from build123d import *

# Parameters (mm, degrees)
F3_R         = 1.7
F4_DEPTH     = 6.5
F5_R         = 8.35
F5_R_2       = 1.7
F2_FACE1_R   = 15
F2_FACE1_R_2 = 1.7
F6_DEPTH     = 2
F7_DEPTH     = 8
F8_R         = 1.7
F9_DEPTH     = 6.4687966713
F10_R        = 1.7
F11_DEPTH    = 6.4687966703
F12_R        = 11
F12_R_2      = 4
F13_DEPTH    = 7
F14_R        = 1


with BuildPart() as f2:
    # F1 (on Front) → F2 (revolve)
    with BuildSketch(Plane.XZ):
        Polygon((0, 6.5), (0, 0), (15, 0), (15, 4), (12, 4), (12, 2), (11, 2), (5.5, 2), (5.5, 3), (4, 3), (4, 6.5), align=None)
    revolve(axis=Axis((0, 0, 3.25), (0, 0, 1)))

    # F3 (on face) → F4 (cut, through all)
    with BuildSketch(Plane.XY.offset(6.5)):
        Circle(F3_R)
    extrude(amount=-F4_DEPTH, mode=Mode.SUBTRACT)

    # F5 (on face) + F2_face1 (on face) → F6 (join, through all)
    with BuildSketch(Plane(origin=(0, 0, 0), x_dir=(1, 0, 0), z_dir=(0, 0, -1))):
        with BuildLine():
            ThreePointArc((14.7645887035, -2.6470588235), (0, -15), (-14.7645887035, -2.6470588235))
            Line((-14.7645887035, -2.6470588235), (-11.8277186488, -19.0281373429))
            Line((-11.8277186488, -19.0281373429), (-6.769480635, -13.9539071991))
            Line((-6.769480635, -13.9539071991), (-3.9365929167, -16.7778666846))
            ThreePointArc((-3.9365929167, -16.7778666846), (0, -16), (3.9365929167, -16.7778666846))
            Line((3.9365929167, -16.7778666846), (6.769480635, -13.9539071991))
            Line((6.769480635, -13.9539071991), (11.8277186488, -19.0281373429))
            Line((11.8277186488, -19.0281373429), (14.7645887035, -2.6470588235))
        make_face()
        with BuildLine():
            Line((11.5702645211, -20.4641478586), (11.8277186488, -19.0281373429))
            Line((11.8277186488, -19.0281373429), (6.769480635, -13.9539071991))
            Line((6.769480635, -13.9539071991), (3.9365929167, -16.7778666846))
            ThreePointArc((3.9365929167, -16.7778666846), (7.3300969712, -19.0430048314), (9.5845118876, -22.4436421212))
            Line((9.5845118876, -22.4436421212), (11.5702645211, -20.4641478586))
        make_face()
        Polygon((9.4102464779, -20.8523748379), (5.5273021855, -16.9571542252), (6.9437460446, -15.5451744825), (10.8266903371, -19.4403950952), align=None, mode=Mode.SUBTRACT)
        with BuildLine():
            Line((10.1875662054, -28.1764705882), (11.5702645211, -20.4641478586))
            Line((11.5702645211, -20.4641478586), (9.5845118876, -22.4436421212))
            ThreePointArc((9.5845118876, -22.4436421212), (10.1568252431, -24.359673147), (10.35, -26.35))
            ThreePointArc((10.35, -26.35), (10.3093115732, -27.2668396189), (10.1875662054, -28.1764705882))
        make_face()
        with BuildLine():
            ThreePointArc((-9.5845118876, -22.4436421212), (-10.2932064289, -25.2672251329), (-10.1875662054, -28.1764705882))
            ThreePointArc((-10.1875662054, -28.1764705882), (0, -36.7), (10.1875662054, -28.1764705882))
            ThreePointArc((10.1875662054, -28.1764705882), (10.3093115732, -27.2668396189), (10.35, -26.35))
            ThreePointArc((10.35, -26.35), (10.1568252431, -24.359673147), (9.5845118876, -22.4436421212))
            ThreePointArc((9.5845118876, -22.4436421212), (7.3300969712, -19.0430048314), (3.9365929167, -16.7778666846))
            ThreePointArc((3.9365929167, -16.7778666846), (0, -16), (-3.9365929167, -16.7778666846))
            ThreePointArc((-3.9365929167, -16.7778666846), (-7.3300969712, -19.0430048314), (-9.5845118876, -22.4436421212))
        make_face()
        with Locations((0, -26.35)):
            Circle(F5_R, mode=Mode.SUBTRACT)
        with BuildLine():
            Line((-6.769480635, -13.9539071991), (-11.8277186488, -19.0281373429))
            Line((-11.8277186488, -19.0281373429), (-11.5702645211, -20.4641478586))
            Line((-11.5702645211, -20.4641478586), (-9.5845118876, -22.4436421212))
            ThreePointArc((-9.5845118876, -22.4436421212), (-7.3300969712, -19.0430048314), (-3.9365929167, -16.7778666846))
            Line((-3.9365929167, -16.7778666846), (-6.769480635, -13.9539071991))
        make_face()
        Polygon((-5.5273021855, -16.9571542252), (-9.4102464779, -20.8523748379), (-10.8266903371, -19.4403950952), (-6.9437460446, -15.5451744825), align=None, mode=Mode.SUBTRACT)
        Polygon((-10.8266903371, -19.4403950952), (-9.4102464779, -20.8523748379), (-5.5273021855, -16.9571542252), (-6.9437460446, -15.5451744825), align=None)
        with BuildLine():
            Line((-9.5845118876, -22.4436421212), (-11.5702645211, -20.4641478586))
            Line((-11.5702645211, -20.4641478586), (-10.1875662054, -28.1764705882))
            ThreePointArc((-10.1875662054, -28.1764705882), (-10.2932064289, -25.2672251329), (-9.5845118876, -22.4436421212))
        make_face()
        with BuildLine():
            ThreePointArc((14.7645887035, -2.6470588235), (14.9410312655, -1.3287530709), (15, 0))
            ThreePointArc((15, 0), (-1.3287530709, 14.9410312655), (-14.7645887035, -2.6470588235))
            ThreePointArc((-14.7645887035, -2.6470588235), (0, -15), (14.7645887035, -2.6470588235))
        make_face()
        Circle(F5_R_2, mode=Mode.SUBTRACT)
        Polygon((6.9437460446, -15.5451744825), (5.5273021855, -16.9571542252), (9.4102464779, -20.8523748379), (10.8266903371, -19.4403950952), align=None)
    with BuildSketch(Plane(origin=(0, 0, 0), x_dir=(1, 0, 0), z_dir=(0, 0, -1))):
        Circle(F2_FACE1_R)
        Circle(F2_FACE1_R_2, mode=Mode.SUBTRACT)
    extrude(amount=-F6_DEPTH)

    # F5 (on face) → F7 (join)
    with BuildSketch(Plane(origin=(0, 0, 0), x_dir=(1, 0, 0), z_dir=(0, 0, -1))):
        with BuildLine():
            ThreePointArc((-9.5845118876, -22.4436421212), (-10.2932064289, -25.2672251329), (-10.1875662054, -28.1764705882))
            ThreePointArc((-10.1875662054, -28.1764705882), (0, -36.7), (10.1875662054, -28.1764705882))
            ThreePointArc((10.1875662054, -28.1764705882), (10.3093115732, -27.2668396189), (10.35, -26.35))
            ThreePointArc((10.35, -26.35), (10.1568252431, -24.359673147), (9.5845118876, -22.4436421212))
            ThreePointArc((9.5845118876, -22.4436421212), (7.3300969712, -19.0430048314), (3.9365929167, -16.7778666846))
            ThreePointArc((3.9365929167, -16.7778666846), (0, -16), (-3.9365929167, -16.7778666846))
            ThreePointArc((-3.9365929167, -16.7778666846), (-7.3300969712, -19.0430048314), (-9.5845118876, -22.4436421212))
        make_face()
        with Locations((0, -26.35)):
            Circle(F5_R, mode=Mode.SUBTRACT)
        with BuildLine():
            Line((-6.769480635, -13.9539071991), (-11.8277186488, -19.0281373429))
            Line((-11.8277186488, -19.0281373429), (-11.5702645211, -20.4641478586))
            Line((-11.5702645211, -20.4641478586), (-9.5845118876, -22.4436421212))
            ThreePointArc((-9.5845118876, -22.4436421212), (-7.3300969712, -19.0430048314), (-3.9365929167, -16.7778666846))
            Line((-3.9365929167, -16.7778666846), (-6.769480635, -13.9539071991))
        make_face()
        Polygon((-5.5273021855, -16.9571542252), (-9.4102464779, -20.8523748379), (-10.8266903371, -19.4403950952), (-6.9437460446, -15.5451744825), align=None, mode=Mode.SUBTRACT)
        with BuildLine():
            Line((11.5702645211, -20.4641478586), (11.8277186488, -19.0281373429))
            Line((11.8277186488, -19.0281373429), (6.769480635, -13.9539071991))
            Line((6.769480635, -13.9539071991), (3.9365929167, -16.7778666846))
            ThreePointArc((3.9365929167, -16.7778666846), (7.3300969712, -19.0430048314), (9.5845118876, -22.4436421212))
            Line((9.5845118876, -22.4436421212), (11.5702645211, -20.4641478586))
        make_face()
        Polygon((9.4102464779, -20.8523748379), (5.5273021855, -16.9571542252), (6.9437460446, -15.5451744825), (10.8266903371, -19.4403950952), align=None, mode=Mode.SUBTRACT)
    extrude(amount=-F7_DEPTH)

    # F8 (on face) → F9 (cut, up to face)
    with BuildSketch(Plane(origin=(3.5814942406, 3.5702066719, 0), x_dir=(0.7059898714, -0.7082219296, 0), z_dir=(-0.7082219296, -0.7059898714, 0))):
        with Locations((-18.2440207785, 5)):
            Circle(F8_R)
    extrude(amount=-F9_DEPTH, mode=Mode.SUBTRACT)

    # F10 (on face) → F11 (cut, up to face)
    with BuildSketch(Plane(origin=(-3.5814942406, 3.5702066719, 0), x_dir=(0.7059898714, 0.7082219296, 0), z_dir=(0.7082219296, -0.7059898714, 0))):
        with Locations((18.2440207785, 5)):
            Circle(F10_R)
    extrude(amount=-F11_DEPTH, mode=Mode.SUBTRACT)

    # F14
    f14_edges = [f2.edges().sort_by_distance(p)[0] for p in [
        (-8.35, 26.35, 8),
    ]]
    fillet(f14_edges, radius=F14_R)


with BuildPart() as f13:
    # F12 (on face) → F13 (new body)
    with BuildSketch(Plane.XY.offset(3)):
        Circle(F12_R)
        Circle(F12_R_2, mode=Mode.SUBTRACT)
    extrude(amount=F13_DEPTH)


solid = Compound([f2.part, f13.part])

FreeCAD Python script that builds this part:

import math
import FreeCAD as App
import Part
import Sketcher

V = App.Vector


def edges_at(feature, points):
    """Names of the edges that pass closest to the given points."""
    edges = feature.Shape.Edges
    near = lambda p: min(range(len(edges)), key=lambda i: edges[i].distToShape(Part.Vertex(*p))[0])
    return sorted({f"Edge{near(p) + 1}" for p in points})


def add_polygon(sketch, points):
    """Adds a closed chain of lines whose ends are joined by coincident constraints."""
    first, n = sketch.GeometryCount, len(points)
    for a, b in zip(points, points[1:] + points[:1]):
        sketch.addGeometry(Part.LineSegment(App.Vector(*a, 0), App.Vector(*b, 0)), False)
    for i in range(n):
        sketch.addConstraint(Sketcher.Constraint("Coincident", first + i, 2, first + (i + 1) % n, 1))

doc = App.newDocument("Part")
body = doc.addObject("PartDesign::Body", "Body")

# Sketch on XZ plane
sketch1 = doc.addObject("Sketcher::SketchObject", "Sketch")
body.addObject(sketch1)
sketch1.AttachmentSupport = (doc.XZ_Plane, [""])
sketch1.MapMode = "FlatFace"
add_polygon(sketch1, [(0, 6.5), (0, 0), (15, 0), (15, 4), (12, 4), (12, 2), (5.5, 2), (5.5, 3), (4, 3), (4, 6.5)])  # lines 0-9
sketch1.addConstraint([
    Sketcher.Constraint("Vertical", 0),
    Sketcher.Constraint("Horizontal", 1),
    Sketcher.Constraint("Vertical", 2),
    Sketcher.Constraint("Horizontal", 3),
    Sketcher.Constraint("Vertical", 4),
    Sketcher.Constraint("Horizontal", 5),
    Sketcher.Constraint("Vertical", 6),
    Sketcher.Constraint("Horizontal", 7),
    Sketcher.Constraint("Vertical", 8),
    Sketcher.Constraint("Horizontal", 9),
    Sketcher.Constraint("Coincident", 0, 2, -1, 1),
    Sketcher.Constraint("Equal", 5, 0),
    Sketcher.Constraint("Equal", 9, 2),
    Sketcher.Constraint("DistanceX", 1, 1, 1, 2, 15.0),
    Sketcher.Constraint("DistanceX", 3, 2, 3, 1, 3.0),
    Sketcher.Constraint("DistanceX", 9, 2, 9, 1, 4.0),
    Sketcher.Constraint("DistanceY", 4, 2, 4, 1, 2.0),
    Sketcher.Constraint("DistanceY", 6, 1, 6, 2, 1.0),
    Sketcher.Constraint("DistanceX", 5, 2, 5, 1, 6.5),
])
revolution = doc.addObject("PartDesign::Revolution", "Revolution")
body.addObject(revolution)
revolution.Profile = sketch1
revolution.ReferenceAxis = (sketch1, ["V_Axis"])
revolution.Angle = 360

# Sketch on XY plane
sketch2 = doc.addObject("Sketcher::SketchObject", "Sketch001")
body.addObject(sketch2)
sketch2.AttachmentSupport = (doc.XY_Plane, [""])
sketch2.MapMode = "FlatFace"
sketch2.AttachmentOffset = App.Placement(V(0, 0, 6.5), App.Rotation())
sketch2.addGeometry(Part.Circle(V(0, 0, 0), V(0, 0, 1), 1.7), False)
sketch2.addConstraint([
    Sketcher.Constraint("Coincident", 0, 3, -1, 1),
    Sketcher.Constraint("Diameter", 0, 3.4),
])
pocket1 = doc.addObject("PartDesign::Pocket", "Pocket")
body.addObject(pocket1)
pocket1.Profile = sketch2
pocket1.Type = "ThroughAll"

# Sketch on XY plane
sketch3 = doc.addObject("Sketcher::SketchObject", "Sketch002")
body.addObject(sketch3)
sketch3.AttachmentSupport = (doc.XY_Plane, [""])
sketch3.MapMode = "FlatFace"
sketch3.addGeometry([
    Part.ArcOfCircle(Part.Circle(V(0, 0, 0), V(0, 0, 1), 15), math.radians(170), math.radians(360)),  # 0
    Part.LineSegment(V(-14.8, 2.6, 0), V(-11.8, 19, 0)),  # 1
    Part.LineSegment(V(-11.8, 19, 0), V(-11.6, 20.5, 0)),  # 2
    Part.LineSegment(V(-11.6, 20.5, 0), V(-10.2, 28.2, 0)),  # 3
    Part.ArcOfCircle(Part.Circle(V(0, 26.4, 0), V(0, 0, 1), 10.3), math.radians(10), math.radians(170)),  # 4
    Part.LineSegment(V(10.2, 28.2, 0), V(11.6, 20.5, 0)),  # 5
    Part.LineSegment(V(11.6, 20.5, 0), V(11.8, 19, 0)),  # 6
    Part.LineSegment(V(11.8, 19, 0), V(14.8, 2.6, 0)),  # 7
    Part.ArcOfCircle(Part.Circle(V(0, 0, 0), V(0, 0, 1), 15), math.radians(0), math.radians(10.16)),  # 8
    Part.Circle(V(0, 0, 0), V(0, 0, 1), 1.7),  # 9
    Part.Circle(V(0, 26.4, 0), V(0, 0, 1), 8.3),  # 10
], False)
sketch3.addConstraint([
    Sketcher.Constraint("Tangent", 0, 1, 1, 1),
    Sketcher.Constraint("Coincident", 1, 2, 2, 1),
    Sketcher.Constraint("Coincident", 2, 2, 3, 1),
    Sketcher.Constraint("Tangent", 3, 2, 4, 2),
    Sketcher.Constraint("Tangent", 4, 1, 5, 1),
    Sketcher.Constraint("Coincident", 5, 2, 6, 1),
    Sketcher.Constraint("Coincident", 6, 2, 7, 1),
    Sketcher.Constraint("Tangent", 7, 2, 8, 2),
    Sketcher.Constraint("Tangent", 8, 1, 0, 2),
    Sketcher.Constraint("Coincident", 0, 3, -1, 1),
    Sketcher.Constraint("Coincident", 9, 3, -1, 1),
    Sketcher.Constraint("Coincident", 10, 3, 4, 3),
    Sketcher.Constraint("Equal", 0, 8),
    Sketcher.Constraint("Symmetric", 3, 2, 4, 1, -2),
    Sketcher.Constraint("Symmetric", 1, 2, 6, 2, -2),
    Sketcher.Constraint("PointOnObject", 8, 1, -1),
    Sketcher.Constraint("Parallel", 1, 2),
    Sketcher.Constraint("Parallel", 2, 3),
    Sketcher.Constraint("Horizontal", 2, 2, 5, 2),
    Sketcher.Constraint("Radius", 0, 15.0),
    Sketcher.Constraint("Diameter", 9, 3.4),
    Sketcher.Constraint("Diameter", 10, 16.7),
    Sketcher.Constraint("Radius", 4, 10.35),
    Sketcher.Constraint("DistanceY", -1, 1, 4, 3, 26.35),
    Sketcher.Constraint("DistanceX", 2, 2, 3, 2, 1.382698),
    Sketcher.Constraint("DistanceX", 1, 2, -1, 1, 11.827719),
])
pad1 = doc.addObject("PartDesign::Pad", "Pad")
body.addObject(pad1)
pad1.Profile = sketch3
pad1.Type = "UpToLast"

# Sketch on XY plane
sketch4 = doc.addObject("Sketcher::SketchObject", "Sketch003")
body.addObject(sketch4)
sketch4.AttachmentSupport = (doc.XY_Plane, [""])
sketch4.MapMode = "FlatFace"
sketch4.addGeometry(Part.ArcOfCircle(Part.Circle(V(0, 26.4, 0), V(0, 0, 1), 10.3), math.radians(170), math.radians(202)), False)  # 0
sketch4.addGeometry(Part.ArcOfCircle(Part.Circle(V(0, 26.4, 0), V(0, 0, 1), 10.3), math.radians(10), math.radians(170)), False)  # 1
sketch4.addGeometry(Part.ArcOfCircle(Part.Circle(V(0, 26.4, 0), V(0, 0, 1), 10.3), math.radians(0), math.radians(10.16)), False)  # 2
sketch4.addGeometry(Part.ArcOfCircle(Part.Circle(V(0, 26.4, 0), V(0, 0, 1), 10.3), math.radians(-22), math.radians(0)), False)  # 3
sketch4.addGeometry(Part.LineSegment(V(9.6, 22.4, 0), V(11.6, 20.5, 0)), False)  # 4
sketch4.addGeometry(Part.LineSegment(V(11.6, 20.5, 0), V(11.8, 19, 0)), False)  # 5
sketch4.addGeometry(Part.LineSegment(V(11.8, 19, 0), V(6.8, 14, 0)), False)  # 6
sketch4.addGeometry(Part.LineSegment(V(6.8, 14, 0), V(3.9, 16.8, 0)), False)  # 7
sketch4.addGeometry(Part.ArcOfCircle(Part.Circle(V(0, 26.4, 0), V(0, 0, 1), 10.3), math.radians(-112), math.radians(-68)), False)  # 8
sketch4.addGeometry(Part.LineSegment(V(-3.9, 16.8, 0), V(-6.8, 14, 0)), False)  # 9
sketch4.addGeometry(Part.LineSegment(V(-6.8, 14, 0), V(-11.8, 19, 0)), False)  # 10
sketch4.addGeometry(Part.LineSegment(V(-11.8, 19, 0), V(-11.6, 20.5, 0)), False)  # 11
sketch4.addGeometry(Part.LineSegment(V(-11.6, 20.5, 0), V(-9.6, 22.4, 0)), False)  # 12
sketch4.addGeometry(Part.Circle(V(0, 26.4, 0), V(0, 0, 1), 8.3), False)  # 13
add_polygon(sketch4, [(-6.9, 15.5), (-5.5, 17), (-9.4, 20.9), (-10.8, 19.4)])  # lines 14-17
add_polygon(sketch4, [(10.8, 19.4), (9.4, 20.9), (5.5, 17), (6.9, 15.5)])  # lines 18-21
sketch4.addConstraint([
    Sketcher.Constraint("Tangent", 0, 1, 1, 2),
    Sketcher.Constraint("Tangent", 1, 1, 2, 2),
    Sketcher.Constraint("Tangent", 2, 1, 3, 2),
    Sketcher.Constraint("Coincident", 3, 1, 4, 1),
    Sketcher.Constraint("Coincident", 4, 2, 5, 1),
    Sketcher.Constraint("Coincident", 5, 2, 6, 1),
    Sketcher.Constraint("Coincident", 6, 2, 7, 1),
    Sketcher.Constraint("Coincident", 7, 2, 8, 2),
    Sketcher.Constraint("Coincident", 8, 1, 9, 1),
    Sketcher.Constraint("Coincident", 9, 2, 10, 1),
    Sketcher.Constraint("Coincident", 10, 2, 11, 1),
    Sketcher.Constraint("Coincident", 11, 2, 12, 1),
    Sketcher.Constraint("Coincident", 12, 2, 0, 2),
    Sketcher.Constraint("Coincident", 2, 3, 0, 3),
    Sketcher.Constraint("Coincident", 8, 3, 0, 3),
    Sketcher.Constraint("Coincident", 13, 3, 0, 3),
    Sketcher.Constraint("Equal", 2, 3),
    Sketcher.Constraint("Equal", 3, 8),
    Sketcher.Constraint("Symmetric", 0, 1, 1, 1, -2),
    Sketcher.Constraint("Symmetric", 6, 2, 9, 2, -2),
    Sketcher.Constraint("Symmetric", 5, 2, 10, 2, -2),
    Sketcher.Constraint("Symmetric", 4, 2, 11, 2, -2),
    Sketcher.Constraint("Symmetric", 15, 2, 18, 2, -2),
    Sketcher.Constraint("Symmetric", 14, 2, 19, 2, -2),
    Sketcher.Constraint("Symmetric", 17, 2, 20, 2, -2),
    Sketcher.Constraint("Symmetric", 16, 2, 21, 2, -2),
    Sketcher.Constraint("Perpendicular", 4, 6),
    Sketcher.Constraint("Perpendicular", 6, 7),
    Sketcher.Constraint("Perpendicular", 9, 10),
    Sketcher.Constraint("Perpendicular", 10, 12),
    Sketcher.Constraint("Parallel", 12, 14),
    Sketcher.Constraint("Perpendicular", 14, 15),
    Sketcher.Constraint("Perpendicular", 15, 16),
    Sketcher.Constraint("Perpendicular", 16, 17),
    Sketcher.Constraint("Horizontal", 13, 3, 2, 1),
    Sketcher.Constraint("Diameter", 13, 16.7),
    Sketcher.Constraint("Radius", 0, 10.35),
    Sketcher.Constraint("Distance", 7, 4.0),
    Sketcher.Constraint("Distance", 14, 2.0),
    Sketcher.Constraint("Distance", 15, 5.5),
    Sketcher.Constraint("DistanceY", -1, 1, 0, 3, 26.35),
    Sketcher.Constraint("DistanceX", 1, 1, 4, 2, 1.382698),
    Sketcher.Constraint("DistanceX", 15, 2, 17, 2, 2.4665),
    Sketcher.Constraint("DistanceY", -1, 1, 0, 1, 28.176471),
    Sketcher.Constraint("DistanceX", -1, 1, 3, 1, 9.584512),
    Sketcher.Constraint("DistanceX", -1, 1, 5, 2, 11.827719),
    Sketcher.Constraint("DistanceX", -1, 1, 6, 2, 6.769481),
    Sketcher.Constraint("DistanceX", 16, 2, -1, 1, 10.82669),
    Sketcher.Constraint("DistanceY", 8, 1, 15, 2, 4.074508),
])
pad2 = doc.addObject("PartDesign::Pad", "Pad001")
body.addObject(pad2)
pad2.Profile = sketch4
pad2.Length = 8

# Sketch on an angled plane
sketch5 = doc.addObject("Sketcher::SketchObject", "Sketch004")
body.addObject(sketch5)
sketch5.Placement = App.Placement(V(3.581494, 3.570207, 0), App.Rotation(V(0.705989871, -0.70822193, 0), V(0, 0, 1), V(-0.70822193, -0.705989871, 0), "ZXY"))
sketch5.addGeometry(Part.Circle(V(-18.2, 5, 0), V(0, 0, 1), 1.7), False)
sketch5.addConstraint([
    Sketcher.Constraint("Diameter", 0, 3.4),
    Sketcher.Constraint("DistanceY", -1, 1, 0, 3, 5.0),
    Sketcher.Constraint("DistanceX", 0, 3, -1, 1, 18.244021),
])
pocket2 = doc.addObject("PartDesign::Pocket", "Pocket001")
body.addObject(pocket2)
pocket2.Profile = sketch5
pocket2.Length = 6.468797

# Sketch on an angled plane
sketch6 = doc.addObject("Sketcher::SketchObject", "Sketch005")
body.addObject(sketch6)
sketch6.Placement = App.Placement(V(-3.581494, 3.570207, 0), App.Rotation(V(0.705989871, 0.70822193, 0), V(0, 0, 1), V(0.70822193, -0.705989871, 0), "ZXY"))
sketch6.addGeometry(Part.Circle(V(18.2, 5, 0), V(0, 0, 1), 1.7), False)
sketch6.addConstraint([
    Sketcher.Constraint("Diameter", 0, 3.4),
    Sketcher.Constraint("DistanceY", -1, 1, 0, 3, 5.0),
    Sketcher.Constraint("DistanceX", -1, 1, 0, 3, 18.244021),
])
pocket3 = doc.addObject("PartDesign::Pocket", "Pocket002")
body.addObject(pocket3)
pocket3.Profile = sketch6
pocket3.Length = 6.468797
doc.recompute()

fillet = doc.addObject("PartDesign::Fillet", "Fillet")
body.addObject(fillet)
fillet.Base = (pocket3, edges_at(pocket3, [(-8.35, 26.35, 8)]))
fillet.Radius = 1
body2 = doc.addObject("PartDesign::Body", "Body001")

# Sketch on XY plane
sketch7 = doc.addObject("Sketcher::SketchObject", "Sketch006")
body2.addObject(sketch7)
sketch7.AttachmentSupport = (doc.getObject("XY_Plane001"), [""])
sketch7.MapMode = "FlatFace"
sketch7.AttachmentOffset = App.Placement(V(0, 0, 3), App.Rotation())
sketch7.addGeometry([
    Part.Circle(V(0, 0, 0), V(0, 0, 1), 11),
    Part.Circle(V(0, 0, 0), V(0, 0, 1), 4),
], False)
sketch7.addConstraint([
    Sketcher.Constraint("Coincident", 0, 3, -1, 1),
    Sketcher.Constraint("Coincident", 1, 3, -1, 1),
    Sketcher.Constraint("Diameter", 0, 22.0),
    Sketcher.Constraint("Diameter", 1, 8.0),
])
pad3 = doc.addObject("PartDesign::Pad", "Pad002")
body2.addObject(pad3)
pad3.Profile = sketch7
pad3.Length = 7

doc.recompute()
